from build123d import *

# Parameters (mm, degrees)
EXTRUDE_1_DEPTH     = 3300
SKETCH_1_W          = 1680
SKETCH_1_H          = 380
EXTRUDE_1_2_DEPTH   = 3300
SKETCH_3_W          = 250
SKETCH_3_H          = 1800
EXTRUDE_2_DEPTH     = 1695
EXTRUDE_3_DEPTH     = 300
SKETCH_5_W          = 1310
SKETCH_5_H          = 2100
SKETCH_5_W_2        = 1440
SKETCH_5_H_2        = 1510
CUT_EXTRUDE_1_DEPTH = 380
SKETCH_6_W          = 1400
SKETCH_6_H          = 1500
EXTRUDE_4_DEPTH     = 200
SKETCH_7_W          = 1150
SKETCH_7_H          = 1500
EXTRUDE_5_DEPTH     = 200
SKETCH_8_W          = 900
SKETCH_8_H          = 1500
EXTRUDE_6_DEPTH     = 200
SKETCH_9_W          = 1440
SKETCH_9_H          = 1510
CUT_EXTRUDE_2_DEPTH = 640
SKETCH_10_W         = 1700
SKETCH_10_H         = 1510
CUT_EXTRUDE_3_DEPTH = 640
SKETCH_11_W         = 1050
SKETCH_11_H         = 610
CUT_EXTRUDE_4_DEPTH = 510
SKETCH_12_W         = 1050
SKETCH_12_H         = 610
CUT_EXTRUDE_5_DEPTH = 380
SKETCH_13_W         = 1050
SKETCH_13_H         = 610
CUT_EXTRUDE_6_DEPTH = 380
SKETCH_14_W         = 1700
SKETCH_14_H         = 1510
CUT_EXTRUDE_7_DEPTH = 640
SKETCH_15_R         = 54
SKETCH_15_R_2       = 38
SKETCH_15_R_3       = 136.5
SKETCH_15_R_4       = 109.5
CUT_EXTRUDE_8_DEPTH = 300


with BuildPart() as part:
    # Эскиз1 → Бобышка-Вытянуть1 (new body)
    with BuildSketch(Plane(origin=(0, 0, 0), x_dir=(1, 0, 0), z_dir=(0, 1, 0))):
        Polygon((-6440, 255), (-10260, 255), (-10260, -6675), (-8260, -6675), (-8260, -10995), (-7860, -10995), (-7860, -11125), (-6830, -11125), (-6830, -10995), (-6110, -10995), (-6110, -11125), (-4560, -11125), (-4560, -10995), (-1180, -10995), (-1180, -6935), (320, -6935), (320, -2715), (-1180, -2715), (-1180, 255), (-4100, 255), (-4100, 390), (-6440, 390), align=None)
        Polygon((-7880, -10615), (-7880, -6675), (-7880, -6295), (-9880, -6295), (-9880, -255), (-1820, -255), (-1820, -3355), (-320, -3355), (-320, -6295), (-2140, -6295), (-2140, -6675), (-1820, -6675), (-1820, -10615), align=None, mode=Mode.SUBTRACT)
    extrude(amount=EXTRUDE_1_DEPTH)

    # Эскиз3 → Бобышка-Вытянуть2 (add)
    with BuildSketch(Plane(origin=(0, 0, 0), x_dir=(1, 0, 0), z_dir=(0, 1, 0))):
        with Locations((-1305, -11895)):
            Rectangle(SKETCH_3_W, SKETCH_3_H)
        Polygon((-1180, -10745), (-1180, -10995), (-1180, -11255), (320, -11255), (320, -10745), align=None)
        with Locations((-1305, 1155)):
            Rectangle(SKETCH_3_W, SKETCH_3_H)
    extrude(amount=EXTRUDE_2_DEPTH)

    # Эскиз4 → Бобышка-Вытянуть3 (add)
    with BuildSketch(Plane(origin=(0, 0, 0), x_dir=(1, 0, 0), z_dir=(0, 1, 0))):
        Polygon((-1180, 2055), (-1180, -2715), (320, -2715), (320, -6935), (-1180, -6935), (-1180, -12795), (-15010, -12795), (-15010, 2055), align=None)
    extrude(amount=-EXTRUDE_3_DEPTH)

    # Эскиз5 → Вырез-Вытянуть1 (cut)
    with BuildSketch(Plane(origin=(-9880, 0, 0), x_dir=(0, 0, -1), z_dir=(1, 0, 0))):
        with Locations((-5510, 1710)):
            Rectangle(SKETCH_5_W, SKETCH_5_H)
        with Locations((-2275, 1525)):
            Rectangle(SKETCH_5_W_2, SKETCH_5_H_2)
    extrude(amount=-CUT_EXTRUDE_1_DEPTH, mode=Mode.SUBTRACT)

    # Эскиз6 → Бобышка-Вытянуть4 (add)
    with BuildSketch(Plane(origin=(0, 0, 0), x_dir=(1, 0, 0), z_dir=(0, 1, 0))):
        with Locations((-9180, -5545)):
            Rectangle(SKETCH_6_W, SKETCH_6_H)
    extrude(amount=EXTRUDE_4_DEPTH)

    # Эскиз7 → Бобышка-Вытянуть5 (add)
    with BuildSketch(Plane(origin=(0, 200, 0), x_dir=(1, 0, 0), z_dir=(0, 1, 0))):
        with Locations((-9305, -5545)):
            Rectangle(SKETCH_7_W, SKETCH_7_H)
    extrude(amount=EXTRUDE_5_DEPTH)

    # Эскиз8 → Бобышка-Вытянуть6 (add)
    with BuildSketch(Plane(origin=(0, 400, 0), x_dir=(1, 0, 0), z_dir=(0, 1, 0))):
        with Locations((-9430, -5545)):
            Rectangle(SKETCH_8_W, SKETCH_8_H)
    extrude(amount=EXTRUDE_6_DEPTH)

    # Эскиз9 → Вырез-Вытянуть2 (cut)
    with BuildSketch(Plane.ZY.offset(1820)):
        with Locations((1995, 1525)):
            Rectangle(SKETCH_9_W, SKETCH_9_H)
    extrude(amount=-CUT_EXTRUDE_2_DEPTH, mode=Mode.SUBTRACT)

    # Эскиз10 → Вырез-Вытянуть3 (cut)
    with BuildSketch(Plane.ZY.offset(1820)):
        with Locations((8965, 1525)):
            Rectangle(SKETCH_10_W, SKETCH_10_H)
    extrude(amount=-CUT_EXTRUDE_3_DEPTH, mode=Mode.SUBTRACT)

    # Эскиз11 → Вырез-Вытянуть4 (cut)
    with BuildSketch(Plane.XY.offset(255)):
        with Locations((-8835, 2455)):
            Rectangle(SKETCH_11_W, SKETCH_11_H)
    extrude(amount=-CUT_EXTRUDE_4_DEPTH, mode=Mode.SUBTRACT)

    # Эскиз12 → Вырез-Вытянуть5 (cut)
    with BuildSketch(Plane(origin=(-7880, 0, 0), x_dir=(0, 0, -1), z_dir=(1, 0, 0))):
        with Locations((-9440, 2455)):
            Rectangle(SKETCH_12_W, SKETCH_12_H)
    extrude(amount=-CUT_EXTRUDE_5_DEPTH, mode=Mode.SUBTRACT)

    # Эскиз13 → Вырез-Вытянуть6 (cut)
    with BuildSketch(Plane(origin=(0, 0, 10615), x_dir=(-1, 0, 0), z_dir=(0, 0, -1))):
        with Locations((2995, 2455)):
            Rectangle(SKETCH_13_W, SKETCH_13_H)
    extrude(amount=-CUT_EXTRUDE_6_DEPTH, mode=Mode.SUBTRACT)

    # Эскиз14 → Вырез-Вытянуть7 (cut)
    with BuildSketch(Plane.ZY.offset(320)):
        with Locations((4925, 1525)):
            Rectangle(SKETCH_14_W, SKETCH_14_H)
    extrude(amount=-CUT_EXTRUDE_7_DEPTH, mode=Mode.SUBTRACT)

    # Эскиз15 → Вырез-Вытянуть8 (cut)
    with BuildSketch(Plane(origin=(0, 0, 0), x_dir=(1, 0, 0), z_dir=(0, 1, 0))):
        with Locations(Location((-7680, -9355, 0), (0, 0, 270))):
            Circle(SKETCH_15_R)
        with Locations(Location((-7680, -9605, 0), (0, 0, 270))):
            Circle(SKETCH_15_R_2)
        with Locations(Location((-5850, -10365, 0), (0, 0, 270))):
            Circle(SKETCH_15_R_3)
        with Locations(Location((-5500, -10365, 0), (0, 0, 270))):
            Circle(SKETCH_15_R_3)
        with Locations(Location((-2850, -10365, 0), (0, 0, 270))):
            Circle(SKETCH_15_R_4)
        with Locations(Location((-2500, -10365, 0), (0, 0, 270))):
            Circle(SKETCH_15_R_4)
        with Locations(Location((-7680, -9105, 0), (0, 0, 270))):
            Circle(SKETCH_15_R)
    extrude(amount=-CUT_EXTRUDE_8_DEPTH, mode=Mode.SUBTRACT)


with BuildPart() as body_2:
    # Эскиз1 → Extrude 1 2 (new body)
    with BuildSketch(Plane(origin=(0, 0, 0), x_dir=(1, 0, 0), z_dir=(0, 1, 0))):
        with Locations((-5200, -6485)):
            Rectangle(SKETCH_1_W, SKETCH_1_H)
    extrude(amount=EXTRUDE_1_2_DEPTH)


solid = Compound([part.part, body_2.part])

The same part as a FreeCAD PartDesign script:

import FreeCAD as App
import Part
import Sketcher
Q = App.Units.Quantity


def add_polygon(sketch, points):
    """Adds a closed chain of lines whose ends are joined by coincident constraints."""
    first, n = sketch.GeometryCount, len(points)
    for a, b in zip(points, points[1:] + points[:1]):
        sketch.addGeometry(Part.LineSegment(App.Vector(*a, 0), App.Vector(*b, 0)), False)
    for i in range(n):
        sketch.addConstraint(Sketcher.Constraint("Coincident", first + i, 2, first + (i + 1) % n, 1))

doc = App.newDocument("Part")
body = doc.addObject("PartDesign::Body", "Body")

sketch1 = body.newObject("Sketcher::SketchObject", "Sketch")
sketch1.AttachmentSupport = (doc.getObject("XZ_Plane"), [""])
sketch1.MapMode = "FlatFace"
add_polygon(sketch1, [(-6440, -255), (-10260, -255), (-10260, 6675), (-8260, 6675), (-8260, 10995), (-7860, 10995), (-7860, 11125), (-6830, 11125), (-6830, 10995), (-6110, 10995), (-6110, 11125), (-4560, 11125), (-4560, 10995), (-1180, 10995), (-1180, 6935), (320, 6935), (320, 2715), (-1180, 2715), (-1180, -255), (-4100, -255), (-4100, -390), (-6440, -390)])
add_polygon(sketch1, [(-1820, 10615), (-7880, 10615), (-7880, 6295), (-9880, 6295), (-9880, 255), (-1820, 255), (-1820, 3355), (-320, 3355), (-320, 6295), (-2140, 6295), (-2140, 6675), (-1820, 6675)])
sketch1.addConstraint([
    Sketcher.Constraint("Horizontal", 0),
    Sketcher.Constraint("Vertical", 1),
    Sketcher.Constraint("Horizontal", 2),
    Sketcher.Constraint("Vertical", 3),
    Sketcher.Constraint("Horizontal", 4),
    Sketcher.Constraint("Vertical", 5),
    Sketcher.Constraint("Horizontal", 6),
    Sketcher.Constraint("Vertical", 7),
    Sketcher.Constraint("Horizontal", 8),
    Sketcher.Constraint("Vertical", 9),
    Sketcher.Constraint("Horizontal", 10),
    Sketcher.Constraint("Vertical", 11),
    Sketcher.Constraint("Horizontal", 12),
    Sketcher.Constraint("Vertical", 13),
    Sketcher.Constraint("Horizontal", 14),
    Sketcher.Constraint("Vertical", 15),
    Sketcher.Constraint("Horizontal", 16),
    Sketcher.Constraint("Vertical", 17),
    Sketcher.Constraint("Horizontal", 18),
    Sketcher.Constraint("Vertical", 19),
    Sketcher.Constraint("Horizontal", 20),
    Sketcher.Constraint("Vertical", 21),
    Sketcher.Constraint("Horizontal", 22),
    Sketcher.Constraint("Vertical", 23),
    Sketcher.Constraint("Horizontal", 24),
    Sketcher.Constraint("Vertical", 25),
    Sketcher.Constraint("Horizontal", 26),
    Sketcher.Constraint("Vertical", 27),
    Sketcher.Constraint("Horizontal", 28),
    Sketcher.Constraint("Vertical", 29),
    Sketcher.Constraint("Horizontal", 30),
    Sketcher.Constraint("Vertical", 31),
    Sketcher.Constraint("Horizontal", 32),
    Sketcher.Constraint("Vertical", 33),
    Sketcher.Constraint("Horizontal", 4, 2, 7, 2),
    Sketcher.Constraint("Horizontal", 6, 2, 9, 2),
    Sketcher.Constraint("Horizontal", 8, 2, 11, 2),
    Sketcher.Constraint("Horizontal", 0, 2, 17, 2),
    Sketcher.Constraint("Horizontal", 24, 2, 29, 2),
    Sketcher.Constraint("Horizontal", 2, 2, 31, 2),
    Sketcher.Constraint("Vertical", 13, 2, 16, 2),
    Sketcher.Constraint("Vertical", 27, 2, 32, 2),
    Sketcher.Constraint("Equal", 2, 24),
    Sketcher.Constraint("Equal", 16, 28),
    Sketcher.Constraint("Equal", 3, 23),
    Sketcher.Constraint("DistanceX", 0, 2, 0, 1, Q("3820 mm")),
    Sketcher.Constraint("DistanceX", 2, 1, 2, 2, Q("2000 mm")),
    Sketcher.Constraint("DistanceX", 4, 1, 4, 2, Q("400 mm")),
    Sketcher.Constraint("DistanceX", 6, 1, 6, 2, Q("1030 mm")),
    Sketcher.Constraint("DistanceX", 8, 1, 8, 2, Q("720 mm")),
    Sketcher.Constraint("DistanceX", 10, 1, 10, 2, Q("1550 mm")),
    Sketcher.Constraint("DistanceX", 12, 1, 12, 2, Q("3380 mm")),
    Sketcher.Constraint("DistanceX", 14, 1, 14, 2, Q("1500 mm")),
    Sketcher.Constraint("DistanceX", 18, 2, 18, 1, Q("2920 mm")),
    Sketcher.Constraint("DistanceX", 22, 2, 22, 1, Q("6060 mm")),
    Sketcher.Constraint("DistanceX", 30, 2, 30, 1, Q("1820 mm")),
    Sketcher.Constraint("DistanceY", 1, 1, 1, 2, Q("6930 mm")),
    Sketcher.Constraint("DistanceY", 3, 1, 3, 2, Q("4320 mm")),
    Sketcher.Constraint("DistanceY", 5, 1, 5, 2, Q("130 mm")),
    Sketcher.Constraint("DistanceY", 13, 2, 13, 1, Q("4060 mm")),
    Sketcher.Constraint("DistanceY", 15, 2, 15, 1, Q("4220 mm")),
    Sketcher.Constraint("DistanceY", 19, 2, 19, 1, Q("135 mm")),
    Sketcher.Constraint("DistanceY", 25, 2, 25, 1, Q("6040 mm")),
    Sketcher.Constraint("DistanceY", 27, 1, 27, 2, Q("3100 mm")),
    Sketcher.Constraint("DistanceY", 31, 1, 31, 2, Q("380 mm")),
    Sketcher.Constraint("DistanceX", 0, 2, -1, 1, Q("10260 mm")),
    Sketcher.Constraint("DistanceY", 0, 2, -1, 1, Q("255 mm")),
    Sketcher.Constraint("DistanceX", 22, 2, -1, 1, Q("7880 mm")),
])
pad1 = body.newObject("PartDesign::Pad", "Pad")
pad1.Profile = sketch1
pad1.Length = 3300
pad1.Reversed = True

sketch2 = body.newObject("Sketcher::SketchObject", "Sketch001")
sketch2.AttachmentSupport = (doc.getObject("XZ_Plane"), [""])
sketch2.MapMode = "FlatFace"
add_polygon(sketch2, [(-1430, 10995), (-1430, 12795), (-1180, 12795), (-1180, 11255), (320, 11255), (320, 10745), (-1180, 10745), (-1180, 10995)])
add_polygon(sketch2, [(-1430, -2055), (-1430, -255), (-1180, -255), (-1180, -2055)])
sketch2.addConstraint([
    Sketcher.Constraint("Vertical", 0),
    Sketcher.Constraint("Horizontal", 1),
    Sketcher.Constraint("Vertical", 2),
    Sketcher.Constraint("Horizontal", 3),
    Sketcher.Constraint("Vertical", 4),
    Sketcher.Constraint("Horizontal", 5),
    Sketcher.Constraint("Vertical", 6),
    Sketcher.Constraint("Horizontal", 7),
    Sketcher.Constraint("Vertical", 8),
    Sketcher.Constraint("Horizontal", 9),
    Sketcher.Constraint("Vertical", 10),
    Sketcher.Constraint("Horizontal", 11),
    Sketcher.Constraint("Vertical", 2, 2, 5, 2),
    Sketcher.Constraint("Vertical", 7, 2, 8, 2),
    Sketcher.Constraint("Vertical", 6, 2, 9, 2),
    Sketcher.Constraint("Equal", 11, 6),
    Sketcher.Constraint("Equal", 0, 8),
    Sketcher.Constraint("DistanceX", 1, 1, 1, 2, Q("250 mm")),
    Sketcher.Constraint("DistanceX", 3, 1, 3, 2, Q("1500 mm")),
    Sketcher.Constraint("DistanceY", 0, 1, 0, 2, Q("1800 mm")),
    Sketcher.Constraint("DistanceY", 2, 2, 2, 1, Q("1540 mm")),
    Sketcher.Constraint("DistanceX", 0, 2, -1, 1, Q("1430 mm")),
    Sketcher.Constraint("DistanceY", -1, 1, 0, 2, Q("12795 mm")),
    Sketcher.Constraint("DistanceY", 8, 2, -1, 1, Q("255 mm")),
])
pad2 = body.newObject("PartDesign::Pad", "Pad001")
pad2.Profile = sketch2
pad2.Length = 1695
pad2.Reversed = True

sketch3 = body.newObject("Sketcher::SketchObject", "Sketch002")
sketch3.AttachmentSupport = (doc.getObject("XZ_Plane"), [""])
sketch3.MapMode = "FlatFace"
add_polygon(sketch3, [(-1180, 2715), (-1180, -2055), (-15010, -2055), (-15010, 12795), (-1180, 12795), (-1180, 6935), (320, 6935), (320, 2715)])
sketch3.addConstraint([
    Sketcher.Constraint("Vertical", 0),
    Sketcher.Constraint("Horizontal", 1),
    Sketcher.Constraint("Vertical", 2),
    Sketcher.Constraint("Horizontal", 3),
    Sketcher.Constraint("Vertical", 4),
    Sketcher.Constraint("Horizontal", 5),
    Sketcher.Constraint("Vertical", 6),
    Sketcher.Constraint("Horizontal", 7),
    Sketcher.Constraint("Vertical", 0, 2, 3, 2),
    Sketcher.Constraint("DistanceX", 1, 2, 1, 1, Q("13830 mm")),
    Sketcher.Constraint("DistanceX", 5, 1, 5, 2, Q("1500 mm")),
    Sketcher.Constraint("DistanceY", 0, 2, 0, 1, Q("4770 mm")),
    Sketcher.Constraint("DistanceY", 2, 1, 2, 2, Q("14850 mm")),
    Sketcher.Constraint("DistanceY", 4, 2, 4, 1, Q("5860 mm")),
    Sketcher.Constraint("DistanceX", 0, 2, -1, 1, Q("1180 mm")),
    Sketcher.Constraint("DistanceY", 0, 2, -1, 1, Q("2055 mm")),
])
pad3 = body.newObject("PartDesign::Pad", "Pad002")
pad3.Profile = sketch3
pad3.Length = 300

sketch4 = body.newObject("Sketcher::SketchObject", "Sketch003")
sketch4.AttachmentSupport = (doc.getObject("YZ_Plane"), [""])
sketch4.MapMode = "FlatFace"
sketch4.AttachmentOffset = App.Placement(App.Vector(0, 0, -9880), App.Rotation())
add_polygon(sketch4, [(2760, 6165), (660, 6165), (660, 4855), (2760, 4855)])
add_polygon(sketch4, [(2280, 2995), (770, 2995), (770, 1555), (2280, 1555)])
sketch4.addConstraint([
    Sketcher.Constraint("Horizontal", 0),
    Sketcher.Constraint("Vertical", 1),
    Sketcher.Constraint("Horizontal", 2),
    Sketcher.Constraint("Vertical", 3),
    Sketcher.Constraint("Horizontal", 4),
    Sketcher.Constraint("Vertical", 5),
    Sketcher.Constraint("Horizontal", 6),
    Sketcher.Constraint("Vertical", 7),
    Sketcher.Constraint("DistanceX", 0, 2, 0, 1, Q("2100 mm")),
    Sketcher.Constraint("DistanceX", 4, 2, 4, 1, Q("1510 mm")),
    Sketcher.Constraint("DistanceY", 1, 2, 1, 1, Q("1310 mm")),
    Sketcher.Constraint("DistanceY", 5, 2, 5, 1, Q("1440 mm")),
    Sketcher.Constraint("DistanceX", -1, 1, 0, 2, Q("660 mm")),
    Sketcher.Constraint("DistanceY", -1, 1, 0, 2, Q("6165 mm")),
    Sketcher.Constraint("DistanceX", -1, 1, 4, 2, Q("770 mm")),
    Sketcher.Constraint("DistanceY", -1, 1, 4, 2, Q("2995 mm")),
])
pocket1 = body.newObject("PartDesign::Pocket", "Pocket")
pocket1.Profile = sketch4
pocket1.Length = 380

sketch5 = body.newObject("Sketcher::SketchObject", "Sketch004")
sketch5.AttachmentSupport = (doc.getObject("XZ_Plane"), [""])
sketch5.MapMode = "FlatFace"
add_polygon(sketch5, [(-9880, 4795), (-9880, 6295), (-8480, 6295), (-8480, 4795)])
sketch5.addConstraint([
    Sketcher.Constraint("Vertical", 0),
    Sketcher.Constraint("Horizontal", 1),
    Sketcher.Constraint("Vertical", 2),
    Sketcher.Constraint("Horizontal", 3),
    Sketcher.Constraint("DistanceX", 1, 1, 1, 2, Q("1400 mm")),
    Sketcher.Constraint("DistanceY", 0, 1, 0, 2, Q("1500 mm")),
    Sketcher.Constraint("DistanceX", 0, 2, -1, 1, Q("9880 mm")),
    Sketcher.Constraint("DistanceY", -1, 1, 0, 2, Q("6295 mm")),
])
pad4 = body.newObject("PartDesign::Pad", "Pad003")
pad4.Profile = sketch5
pad4.Length = 200
pad4.Reversed = True

sketch6 = body.newObject("Sketcher::SketchObject", "Sketch005")
sketch6.AttachmentSupport = (doc.getObject("XZ_Plane"), [""])
sketch6.MapMode = "FlatFace"
sketch6.AttachmentOffset = App.Placement(App.Vector(0, 0, -200), App.Rotation())
add_polygon(sketch6, [(-9880, 4795), (-9880, 6295), (-8730, 6295), (-8730, 4795)])
sketch6.addConstraint([
    Sketcher.Constraint("Vertical", 0),
    Sketcher.Constraint("Horizontal", 1),
    Sketcher.Constraint("Vertical", 2),
    Sketcher.Constraint("Horizontal", 3),
    Sketcher.Constraint("DistanceX", 1, 1, 1, 2, Q("1150 mm")),
    Sketcher.Constraint("DistanceY", 0, 1, 0, 2, Q("1500 mm")),
    Sketcher.Constraint("DistanceX", 0, 2, -1, 1, Q("9880 mm")),
    Sketcher.Constraint("DistanceY", -1, 1, 0, 2, Q("6295 mm")),
])
pad5 = body.newObject("PartDesign::Pad", "Pad004")
pad5.Profile = sketch6
pad5.Length = 200
pad5.Reversed = True

sketch7 = body.newObject("Sketcher::SketchObject", "Sketch006")
sketch7.AttachmentSupport = (doc.getObject("XZ_Plane"), [""])
sketch7.MapMode = "FlatFace"
sketch7.AttachmentOffset = App.Placement(App.Vector(0, 0, -400), App.Rotation())
add_polygon(sketch7, [(-9880, 4795), (-9880, 6295), (-8980, 6295), (-8980, 4795)])
sketch7.addConstraint([
    Sketcher.Constraint("Vertical", 0),
    Sketcher.Constraint("Horizontal", 1),
    Sketcher.Constraint("Vertical", 2),
    Sketcher.Constraint("Horizontal", 3),
    Sketcher.Constraint("DistanceX", 1, 1, 1, 2, Q("900 mm")),
    Sketcher.Constraint("DistanceY", 0, 1, 0, 2, Q("1500 mm")),
    Sketcher.Constraint("DistanceX", 0, 2, -1, 1, Q("9880 mm")),
    Sketcher.Constraint("DistanceY", -1, 1, 0, 2, Q("6295 mm")),
])
pad6 = body.newObject("PartDesign::Pad", "Pad005")
pad6.Profile = sketch7
pad6.Length = 200
pad6.Reversed = True

sketch8 = body.newObject("Sketcher::SketchObject", "Sketch007")
sketch8.AttachmentSupport = (doc.getObject("YZ_Plane"), [""])
sketch8.MapMode = "FlatFace"
sketch8.AttachmentOffset = App.Placement(App.Vector(0, 0, -1820), App.Rotation())
add_polygon(sketch8, [(2280, 1275), (770, 1275), (770, 2715), (2280, 2715)])
sketch8.addConstraint([
    Sketcher.Constraint("Horizontal", 0),
    Sketcher.Constraint("Vertical", 1),
    Sketcher.Constraint("Horizontal", 2),
    Sketcher.Constraint("Vertical", 3),
    Sketcher.Constraint("DistanceX", 0, 2, 0, 1, Q("1510 mm")),
    Sketcher.Constraint("DistanceY", 1, 1, 1, 2, Q("1440 mm")),
    Sketcher.Constraint("DistanceX", -1, 1, 0, 2, Q("770 mm")),
    Sketcher.Constraint("DistanceY", -1, 1, 0, 2, Q("1275 mm")),
])
pocket2 = body.newObject("PartDesign::Pocket", "Pocket001")
pocket2.Profile = sketch8
pocket2.Length = 640
pocket2.Reversed = True

sketch9 = body.newObject("Sketcher::SketchObject", "Sketch008")
sketch9.AttachmentSupport = (doc.getObject("YZ_Plane"), [""])
sketch9.MapMode = "FlatFace"
sketch9.AttachmentOffset = App.Placement(App.Vector(0, 0, -1820), App.Rotation())
add_polygon(sketch9, [(2280, 8115), (770, 8115), (770, 9815), (2280, 9815)])
sketch9.addConstraint([
    Sketcher.Constraint("Horizontal", 0),
    Sketcher.Constraint("Vertical", 1),
    Sketcher.Constraint("Horizontal", 2),
    Sketcher.Constraint("Vertical", 3),
    Sketcher.Constraint("DistanceX", 0, 2, 0, 1, Q("1510 mm")),
    Sketcher.Constraint("DistanceY", 1, 1, 1, 2, Q("1700 mm")),
    Sketcher.Constraint("DistanceX", -1, 1, 0, 2, Q("770 mm")),
    Sketcher.Constraint("DistanceY", -1, 1, 0, 2, Q("8115 mm")),
])
pocket3 = body.newObject("PartDesign::Pocket", "Pocket002")
pocket3.Profile = sketch9
pocket3.Length = 640
pocket3.Reversed = True

sketch10 = body.newObject("Sketcher::SketchObject", "Sketch009")
sketch10.AttachmentSupport = (doc.getObject("XY_Plane"), [""])
sketch10.MapMode = "FlatFace"
sketch10.AttachmentOffset = App.Placement(App.Vector(0, 0, 255), App.Rotation())
add_polygon(sketch10, [(-9360, 2760), (-9360, 2150), (-8310, 2150), (-8310, 2760)])
sketch10.addConstraint([
    Sketcher.Constraint("Vertical", 0),
    Sketcher.Constraint("Horizontal", 1),
    Sketcher.Constraint("Vertical", 2),
    Sketcher.Constraint("Horizontal", 3),
    Sketcher.Constraint("DistanceX", 1, 1, 1, 2, Q("1050 mm")),
    Sketcher.Constraint("DistanceY", 0, 2, 0, 1, Q("610 mm")),
    Sketcher.Constraint("DistanceX", 0, 2, -1, 1, Q("9360 mm")),
    Sketcher.Constraint("DistanceY", -1, 1, 0, 2, Q("2150 mm")),
])
pocket4 = body.newObject("PartDesign::Pocket", "Pocket003")
pocket4.Profile = sketch10
pocket4.Length = 510

sketch11 = body.newObject("Sketcher::SketchObject", "Sketch010")
sketch11.AttachmentSupport = (doc.getObject("YZ_Plane"), [""])
sketch11.MapMode = "FlatFace"
sketch11.AttachmentOffset = App.Placement(App.Vector(0, 0, -7880), App.Rotation())
add_polygon(sketch11, [(2760, 9965), (2150, 9965), (2150, 8915), (2760, 8915)])
sketch11.addConstraint([
    Sketcher.Constraint("Horizontal", 0),
    Sketcher.Constraint("Vertical", 1),
    Sketcher.Constraint("Horizontal", 2),
    Sketcher.Constraint("Vertical", 3),
    Sketcher.Constraint("DistanceX", 0, 2, 0, 1, Q("610 mm")),
    Sketcher.Constraint("DistanceY", 1, 2, 1, 1, Q("1050 mm")),
    Sketcher.Constraint("DistanceX", -1, 1, 0, 2, Q("2150 mm")),
    Sketcher.Constraint("DistanceY", -1, 1, 0, 2, Q("9965 mm")),
])
pocket5 = body.newObject("PartDesign::Pocket", "Pocket004")
pocket5.Profile = sketch11
pocket5.Length = 380

sketch12 = body.newObject("Sketcher::SketchObject", "Sketch011")
sketch12.AttachmentSupport = (doc.getObject("XY_Plane"), [""])
sketch12.MapMode = "FlatFace"
sketch12.AttachmentOffset = App.Placement(App.Vector(0, 0, 10615), App.Rotation())
add_polygon(sketch12, [(-2470, 2760), (-2470, 2150), (-3520, 2150), (-3520, 2760)])
sketch12.addConstraint([
    Sketcher.Constraint("Vertical", 0),
    Sketcher.Constraint("Horizontal", 1),
    Sketcher.Constraint("Vertical", 2),
    Sketcher.Constraint("Horizontal", 3),
    Sketcher.Constraint("DistanceX", 1, 2, 1, 1, Q("1050 mm")),
    Sketcher.Constraint("DistanceY", 0, 2, 0, 1, Q("610 mm")),
    Sketcher.Constraint("DistanceX", 0, 2, -1, 1, Q("2470 mm")),
    Sketcher.Constraint("DistanceY", -1, 1, 0, 2, Q("2150 mm")),
])
pocket6 = body.newObject("PartDesign::Pocket", "Pocket005")
pocket6.Profile = sketch12
pocket6.Length = 380
pocket6.Reversed = True

sketch13 = body.newObject("Sketcher::SketchObject", "Sketch012")
sketch13.AttachmentSupport = (doc.getObject("YZ_Plane"), [""])
sketch13.MapMode = "FlatFace"
sketch13.AttachmentOffset = App.Placement(App.Vector(0, 0, -320), App.Rotation())
add_polygon(sketch13, [(2280, 4075), (770, 4075), (770, 5775), (2280, 5775)])
sketch13.addConstraint([
    Sketcher.Constraint("Horizontal", 0),
    Sketcher.Constraint("Vertical", 1),
    Sketcher.Constraint("Horizontal", 2),
    Sketcher.Constraint("Vertical", 3),
    Sketcher.Constraint("DistanceX", 0, 2, 0, 1, Q("1510 mm")),
    Sketcher.Constraint("DistanceY", 1, 1, 1, 2, Q("1700 mm")),
    Sketcher.Constraint("DistanceX", -1, 1, 0, 2, Q("770 mm")),
    Sketcher.Constraint("DistanceY", -1, 1, 0, 2, Q("4075 mm")),
])
pocket7 = body.newObject("PartDesign::Pocket", "Pocket006")
pocket7.Profile = sketch13
pocket7.Length = 640
pocket7.Reversed = True

sketch14 = body.newObject("Sketcher::SketchObject", "Sketch013")
sketch14.AttachmentSupport = (doc.getObject("XZ_Plane"), [""])
sketch14.MapMode = "FlatFace"
sketch14.addGeometry([
    Part.Circle(App.Vector(-7680, 9355, 0), App.Vector(0, 0, 1), 54),
    Part.Circle(App.Vector(-7680, 9605, 0), App.Vector(0, 0, 1), 38),
    Part.Circle(App.Vector(-5850, 10365, 0), App.Vector(0, 0, 1), 136.5),
    Part.Circle(App.Vector(-5500, 10365, 0), App.Vector(0, 0, 1), 136.5),
    Part.Circle(App.Vector(-2850, 10365, 0), App.Vector(0, 0, 1), 109.5),
    Part.Circle(App.Vector(-2500, 10365, 0), App.Vector(0, 0, 1), 109.5),
    Part.Circle(App.Vector(-7680, 9105, 0), App.Vector(0, 0, 1), 54),
], False)
sketch14.addConstraint([
    Sketcher.Constraint("Equal", 2, 3),
    Sketcher.Constraint("Equal", 4, 5),
    Sketcher.Constraint("Equal", 0, 6),
    Sketcher.Constraint("Horizontal", 2, 3, 3, 3),
    Sketcher.Constraint("Horizontal", 3, 3, 4, 3),
    Sketcher.Constraint("Horizontal", 4, 3, 5, 3),
    Sketcher.Constraint("Vertical", 0, 3, 1, 3),
    Sketcher.Constraint("Vertical", 1, 3, 6, 3),
    Sketcher.Constraint("Diameter", 0, Q("108 mm")),
    Sketcher.Constraint("Diameter", 1, Q("76 mm")),
    Sketcher.Constraint("Diameter", 2, Q("273 mm")),
    Sketcher.Constraint("Diameter", 4, Q("219 mm")),
    Sketcher.Constraint("DistanceX", 0, 3, -1, 1, Q("7680 mm")),
    Sketcher.Constraint("DistanceY", -1, 1, 0, 3, Q("9355 mm")),
    Sketcher.Constraint("DistanceY", -1, 1, 1, 3, Q("9605 mm")),
    Sketcher.Constraint("DistanceX", 2, 3, -1, 1, Q("5850 mm")),
    Sketcher.Constraint("DistanceY", -1, 1, 2, 3, Q("10365 mm")),
    Sketcher.Constraint("DistanceX", 3, 3, -1, 1, Q("5500 mm")),
    Sketcher.Constraint("DistanceX", 4, 3, -1, 1, Q("2850 mm")),
    Sketcher.Constraint("DistanceX", 5, 3, -1, 1, Q("2500 mm")),
    Sketcher.Constraint("DistanceY", -1, 1, 6, 3, Q("9105 mm")),
])
pocket8 = body.newObject("PartDesign::Pocket", "Pocket007")
pocket8.Profile = sketch14
pocket8.Length = 300
pocket8.Reversed = True
body2 = doc.addObject("PartDesign::Body", "Body001")

sketch15 = body2.newObject("Sketcher::SketchObject", "Sketch014")
sketch15.AttachmentSupport = (doc.getObject("XZ_Plane001"), [""])
sketch15.MapMode = "FlatFace"
add_polygon(sketch15, [(-6040, 6295), (-6040, 6675), (-4360, 6675), (-4360, 6295)])
sketch15.addConstraint([
    Sketcher.Constraint("Vertical", 0),
    Sketcher.Constraint("Horizontal", 1),
    Sketcher.Constraint("Vertical", 2),
    Sketcher.Constraint("Horizontal", 3),
    Sketcher.Constraint("DistanceX", 1, 1, 1, 2, Q("1680 mm")),
    Sketcher.Constraint("DistanceY", 0, 1, 0, 2, Q("380 mm")),
    Sketcher.Constraint("DistanceX", 0, 2, -1, 1, Q("6040 mm")),
    Sketcher.Constraint("DistanceY", -1, 1, 0, 2, Q("6675 mm")),
])
pad7 = body2.newObject("PartDesign::Pad", "Pad006")
pad7.Profile = sketch15
pad7.Length = 3300
pad7.Reversed = True

doc.recompute()
